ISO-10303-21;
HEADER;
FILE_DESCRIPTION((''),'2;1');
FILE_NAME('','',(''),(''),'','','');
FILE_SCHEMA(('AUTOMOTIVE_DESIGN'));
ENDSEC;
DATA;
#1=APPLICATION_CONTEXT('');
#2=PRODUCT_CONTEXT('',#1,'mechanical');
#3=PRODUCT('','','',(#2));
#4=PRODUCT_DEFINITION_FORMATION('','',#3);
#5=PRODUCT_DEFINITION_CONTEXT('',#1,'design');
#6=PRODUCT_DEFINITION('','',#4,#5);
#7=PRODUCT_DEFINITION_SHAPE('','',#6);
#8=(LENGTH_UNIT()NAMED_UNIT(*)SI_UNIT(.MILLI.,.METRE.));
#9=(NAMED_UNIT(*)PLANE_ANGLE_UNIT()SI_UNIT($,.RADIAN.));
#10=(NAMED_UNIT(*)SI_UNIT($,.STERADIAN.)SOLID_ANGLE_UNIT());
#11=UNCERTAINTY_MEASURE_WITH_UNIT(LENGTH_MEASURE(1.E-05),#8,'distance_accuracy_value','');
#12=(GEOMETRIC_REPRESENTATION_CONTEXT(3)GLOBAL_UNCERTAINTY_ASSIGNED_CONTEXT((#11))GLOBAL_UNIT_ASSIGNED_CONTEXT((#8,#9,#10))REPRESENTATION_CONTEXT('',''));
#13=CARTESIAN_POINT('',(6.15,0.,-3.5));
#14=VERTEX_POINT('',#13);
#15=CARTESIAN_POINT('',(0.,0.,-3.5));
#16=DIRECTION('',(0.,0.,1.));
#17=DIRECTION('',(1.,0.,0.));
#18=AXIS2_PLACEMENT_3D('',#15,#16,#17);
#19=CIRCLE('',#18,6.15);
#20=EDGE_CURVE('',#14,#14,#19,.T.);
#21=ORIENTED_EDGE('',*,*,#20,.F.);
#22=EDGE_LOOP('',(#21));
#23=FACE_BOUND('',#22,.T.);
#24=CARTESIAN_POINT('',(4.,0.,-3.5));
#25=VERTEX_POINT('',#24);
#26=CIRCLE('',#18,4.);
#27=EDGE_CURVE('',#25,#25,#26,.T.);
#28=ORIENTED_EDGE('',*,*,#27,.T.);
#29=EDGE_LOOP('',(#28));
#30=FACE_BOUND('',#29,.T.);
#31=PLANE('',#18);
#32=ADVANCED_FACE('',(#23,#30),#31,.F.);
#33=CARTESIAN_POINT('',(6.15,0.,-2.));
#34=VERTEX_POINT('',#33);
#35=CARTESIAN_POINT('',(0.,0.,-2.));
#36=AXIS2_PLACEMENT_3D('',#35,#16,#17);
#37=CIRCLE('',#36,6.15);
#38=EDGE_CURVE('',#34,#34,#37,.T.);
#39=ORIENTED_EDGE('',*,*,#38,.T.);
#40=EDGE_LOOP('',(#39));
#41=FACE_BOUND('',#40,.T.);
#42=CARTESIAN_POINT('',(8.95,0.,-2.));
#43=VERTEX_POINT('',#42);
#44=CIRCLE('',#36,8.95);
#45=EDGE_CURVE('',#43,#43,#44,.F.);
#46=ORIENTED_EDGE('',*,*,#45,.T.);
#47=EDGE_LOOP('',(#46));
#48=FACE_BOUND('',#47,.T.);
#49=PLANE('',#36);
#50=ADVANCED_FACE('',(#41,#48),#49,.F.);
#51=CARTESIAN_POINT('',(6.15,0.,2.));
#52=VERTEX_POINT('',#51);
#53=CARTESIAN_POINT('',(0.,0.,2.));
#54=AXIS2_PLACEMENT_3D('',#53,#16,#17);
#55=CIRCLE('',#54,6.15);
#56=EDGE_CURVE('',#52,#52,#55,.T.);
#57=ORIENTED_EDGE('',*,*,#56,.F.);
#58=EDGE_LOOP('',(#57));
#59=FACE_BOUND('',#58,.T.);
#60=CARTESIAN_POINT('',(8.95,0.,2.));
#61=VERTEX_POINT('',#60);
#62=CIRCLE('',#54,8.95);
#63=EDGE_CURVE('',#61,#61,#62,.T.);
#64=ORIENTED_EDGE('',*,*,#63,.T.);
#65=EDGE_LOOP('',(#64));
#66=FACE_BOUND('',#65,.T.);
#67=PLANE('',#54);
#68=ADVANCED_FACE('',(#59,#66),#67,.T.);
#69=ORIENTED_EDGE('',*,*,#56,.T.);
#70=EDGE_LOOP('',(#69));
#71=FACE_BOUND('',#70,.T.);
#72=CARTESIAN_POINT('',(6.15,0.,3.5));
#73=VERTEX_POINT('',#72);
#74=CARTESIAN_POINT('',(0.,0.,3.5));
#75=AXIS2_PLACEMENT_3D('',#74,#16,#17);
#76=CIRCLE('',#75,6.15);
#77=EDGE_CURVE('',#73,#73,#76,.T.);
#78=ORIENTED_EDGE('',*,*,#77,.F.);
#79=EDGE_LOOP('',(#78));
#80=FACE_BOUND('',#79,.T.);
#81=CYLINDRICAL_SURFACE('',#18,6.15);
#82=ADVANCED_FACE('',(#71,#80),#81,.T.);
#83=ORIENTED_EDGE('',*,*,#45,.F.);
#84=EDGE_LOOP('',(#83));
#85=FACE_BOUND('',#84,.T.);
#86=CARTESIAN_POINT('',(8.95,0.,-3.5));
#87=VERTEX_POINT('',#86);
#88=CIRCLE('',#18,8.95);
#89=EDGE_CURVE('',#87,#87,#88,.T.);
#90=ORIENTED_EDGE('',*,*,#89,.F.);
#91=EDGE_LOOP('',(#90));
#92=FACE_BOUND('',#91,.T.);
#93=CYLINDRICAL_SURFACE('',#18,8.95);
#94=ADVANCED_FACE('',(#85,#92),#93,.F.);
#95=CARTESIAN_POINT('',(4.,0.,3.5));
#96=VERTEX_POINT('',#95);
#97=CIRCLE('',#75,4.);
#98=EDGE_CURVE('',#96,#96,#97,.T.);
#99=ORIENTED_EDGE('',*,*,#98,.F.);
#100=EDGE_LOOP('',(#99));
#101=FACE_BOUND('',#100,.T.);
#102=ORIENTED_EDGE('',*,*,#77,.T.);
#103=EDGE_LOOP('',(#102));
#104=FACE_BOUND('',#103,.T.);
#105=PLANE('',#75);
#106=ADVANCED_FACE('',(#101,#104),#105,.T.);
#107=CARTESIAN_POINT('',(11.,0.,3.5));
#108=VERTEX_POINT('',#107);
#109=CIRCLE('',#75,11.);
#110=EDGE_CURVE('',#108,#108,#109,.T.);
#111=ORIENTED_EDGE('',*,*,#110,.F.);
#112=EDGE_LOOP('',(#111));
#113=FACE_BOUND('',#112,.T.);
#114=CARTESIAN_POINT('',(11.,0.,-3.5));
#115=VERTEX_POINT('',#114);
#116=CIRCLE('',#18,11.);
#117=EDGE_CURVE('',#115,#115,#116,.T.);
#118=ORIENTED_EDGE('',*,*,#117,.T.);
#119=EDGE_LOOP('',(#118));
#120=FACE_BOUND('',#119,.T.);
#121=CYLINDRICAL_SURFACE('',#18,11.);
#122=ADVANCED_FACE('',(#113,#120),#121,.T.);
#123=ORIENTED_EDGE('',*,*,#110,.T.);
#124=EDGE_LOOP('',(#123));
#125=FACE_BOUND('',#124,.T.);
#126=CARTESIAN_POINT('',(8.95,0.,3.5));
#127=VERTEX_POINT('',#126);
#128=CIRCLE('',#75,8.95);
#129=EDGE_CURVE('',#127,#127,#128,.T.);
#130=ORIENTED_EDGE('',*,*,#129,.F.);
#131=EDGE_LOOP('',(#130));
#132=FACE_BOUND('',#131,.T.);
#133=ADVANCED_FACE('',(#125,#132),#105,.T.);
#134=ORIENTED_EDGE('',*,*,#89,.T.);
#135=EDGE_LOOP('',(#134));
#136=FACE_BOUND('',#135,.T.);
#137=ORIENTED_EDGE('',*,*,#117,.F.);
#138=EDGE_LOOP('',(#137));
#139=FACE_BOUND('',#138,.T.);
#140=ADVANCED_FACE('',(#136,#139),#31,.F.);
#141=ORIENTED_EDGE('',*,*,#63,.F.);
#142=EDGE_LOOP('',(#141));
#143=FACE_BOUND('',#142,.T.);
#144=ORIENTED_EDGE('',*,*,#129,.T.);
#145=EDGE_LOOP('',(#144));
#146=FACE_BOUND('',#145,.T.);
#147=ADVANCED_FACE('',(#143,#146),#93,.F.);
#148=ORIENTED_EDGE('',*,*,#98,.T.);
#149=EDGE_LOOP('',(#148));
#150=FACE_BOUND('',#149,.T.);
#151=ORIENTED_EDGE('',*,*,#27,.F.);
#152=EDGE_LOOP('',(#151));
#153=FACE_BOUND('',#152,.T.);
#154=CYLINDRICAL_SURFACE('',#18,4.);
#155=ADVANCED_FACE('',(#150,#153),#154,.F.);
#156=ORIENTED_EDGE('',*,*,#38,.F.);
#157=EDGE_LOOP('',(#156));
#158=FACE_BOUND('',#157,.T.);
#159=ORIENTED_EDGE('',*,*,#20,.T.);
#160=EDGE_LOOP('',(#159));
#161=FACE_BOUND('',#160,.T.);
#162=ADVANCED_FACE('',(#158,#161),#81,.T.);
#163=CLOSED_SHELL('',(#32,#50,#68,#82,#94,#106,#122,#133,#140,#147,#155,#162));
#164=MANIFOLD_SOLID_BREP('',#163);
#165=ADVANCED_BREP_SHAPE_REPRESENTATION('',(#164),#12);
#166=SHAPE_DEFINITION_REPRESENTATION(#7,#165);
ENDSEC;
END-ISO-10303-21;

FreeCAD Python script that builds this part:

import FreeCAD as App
import Part
import Sketcher
from FreeCAD import Vector
Q = App.Units.Quantity

doc = App.newDocument("Part")
body = doc.addObject("PartDesign::Body", "Body")

# Sketch on XY plane
sketch1 = body.newObject("Sketcher::SketchObject", "Sketch")
sketch1.AttachmentSupport = (doc.getObject("XY_Plane"), [""])
sketch1.MapMode = "FlatFace"
sketch1.addGeometry([
    Part.Circle(Vector(0, 0, 0), Vector(0, 0, 1), 11),
    Part.Circle(Vector(0, 0, 0), Vector(0, 0, 1), 9),
], False)
sketch1.addConstraint([
    Sketcher.Constraint("Coincident", 0, 3, -1, 1),
    Sketcher.Constraint("Coincident", 1, 3, -1, 1),
    Sketcher.Constraint("Diameter", 0, Q("22 mm")),
    Sketcher.Constraint("Diameter", 1, Q("17.9 mm")),
])
pad1 = body.newObject("PartDesign::Pad", "Pad")
pad1.Profile = sketch1
pad1.Type = "TwoLengths"
pad1.Length = 3.5
pad1.Length2 = 3.5
body2 = doc.addObject("PartDesign::Body", "Body001")

# Sketch on XY plane
sketch2 = body2.newObject("Sketcher::SketchObject", "Sketch001")
sketch2.AttachmentSupport = (doc.getObject("XY_Plane001"), [""])
sketch2.MapMode = "FlatFace"
sketch2.addGeometry([
    Part.Circle(Vector(0, 0, 0), Vector(0, 0, 1), 6.2),
    Part.Circle(Vector(0, 0, 0), Vector(0, 0, 1), 4),
], False)
sketch2.addConstraint([
    Sketcher.Constraint("Coincident", 0, 3, -1, 1),
    Sketcher.Constraint("Coincident", 1, 3, -1, 1),
    Sketcher.Constraint("Diameter", 1, Q("8 mm")),
    Sketcher.Constraint("Diameter", 0, Q("12.3 mm")),
])
pad2 = body2.newObject("PartDesign::Pad", "Pad001")
pad2.Profile = sketch2
pad2.Type = "TwoLengths"
pad2.Length = 3.5
pad2.Length2 = 3.5
body.AllowCompound = True
doc.recompute()

boolean = body.newObject("PartDesign::Boolean", "Boolean")
boolean.Type = "Fuse"
boolean.addObjects([body2])

# Sketch on XY plane
sketch3 = body.newObject("Sketcher::SketchObject", "Sketch002")
sketch3.AttachmentSupport = (doc.getObject("XY_Plane"), [""])
sketch3.MapMode = "FlatFace"
sketch3.addGeometry([
    Part.Circle(Vector(0, 0, 0), Vector(0, 0, 1), 9),
    Part.Circle(Vector(0, 0, 0), Vector(0, 0, 1), 6),
], False)
sketch3.addConstraint([
    Sketcher.Constraint("Coincident", 0, 3, -1, 1),
    Sketcher.Constraint("Coincident", 1, 3, -1, 1),
    Sketcher.Constraint("Diameter", 0, Q("17.9 mm")),
    Sketcher.Constraint("Diameter", 1, Q("12.3 mm")),
])
pad3 = body.newObject("PartDesign::Pad", "Pad002")
pad3.Profile = sketch3
pad3.Type = "TwoLengths"
pad3.Length = 2
pad3.Length2 = 2

doc.recompute()
